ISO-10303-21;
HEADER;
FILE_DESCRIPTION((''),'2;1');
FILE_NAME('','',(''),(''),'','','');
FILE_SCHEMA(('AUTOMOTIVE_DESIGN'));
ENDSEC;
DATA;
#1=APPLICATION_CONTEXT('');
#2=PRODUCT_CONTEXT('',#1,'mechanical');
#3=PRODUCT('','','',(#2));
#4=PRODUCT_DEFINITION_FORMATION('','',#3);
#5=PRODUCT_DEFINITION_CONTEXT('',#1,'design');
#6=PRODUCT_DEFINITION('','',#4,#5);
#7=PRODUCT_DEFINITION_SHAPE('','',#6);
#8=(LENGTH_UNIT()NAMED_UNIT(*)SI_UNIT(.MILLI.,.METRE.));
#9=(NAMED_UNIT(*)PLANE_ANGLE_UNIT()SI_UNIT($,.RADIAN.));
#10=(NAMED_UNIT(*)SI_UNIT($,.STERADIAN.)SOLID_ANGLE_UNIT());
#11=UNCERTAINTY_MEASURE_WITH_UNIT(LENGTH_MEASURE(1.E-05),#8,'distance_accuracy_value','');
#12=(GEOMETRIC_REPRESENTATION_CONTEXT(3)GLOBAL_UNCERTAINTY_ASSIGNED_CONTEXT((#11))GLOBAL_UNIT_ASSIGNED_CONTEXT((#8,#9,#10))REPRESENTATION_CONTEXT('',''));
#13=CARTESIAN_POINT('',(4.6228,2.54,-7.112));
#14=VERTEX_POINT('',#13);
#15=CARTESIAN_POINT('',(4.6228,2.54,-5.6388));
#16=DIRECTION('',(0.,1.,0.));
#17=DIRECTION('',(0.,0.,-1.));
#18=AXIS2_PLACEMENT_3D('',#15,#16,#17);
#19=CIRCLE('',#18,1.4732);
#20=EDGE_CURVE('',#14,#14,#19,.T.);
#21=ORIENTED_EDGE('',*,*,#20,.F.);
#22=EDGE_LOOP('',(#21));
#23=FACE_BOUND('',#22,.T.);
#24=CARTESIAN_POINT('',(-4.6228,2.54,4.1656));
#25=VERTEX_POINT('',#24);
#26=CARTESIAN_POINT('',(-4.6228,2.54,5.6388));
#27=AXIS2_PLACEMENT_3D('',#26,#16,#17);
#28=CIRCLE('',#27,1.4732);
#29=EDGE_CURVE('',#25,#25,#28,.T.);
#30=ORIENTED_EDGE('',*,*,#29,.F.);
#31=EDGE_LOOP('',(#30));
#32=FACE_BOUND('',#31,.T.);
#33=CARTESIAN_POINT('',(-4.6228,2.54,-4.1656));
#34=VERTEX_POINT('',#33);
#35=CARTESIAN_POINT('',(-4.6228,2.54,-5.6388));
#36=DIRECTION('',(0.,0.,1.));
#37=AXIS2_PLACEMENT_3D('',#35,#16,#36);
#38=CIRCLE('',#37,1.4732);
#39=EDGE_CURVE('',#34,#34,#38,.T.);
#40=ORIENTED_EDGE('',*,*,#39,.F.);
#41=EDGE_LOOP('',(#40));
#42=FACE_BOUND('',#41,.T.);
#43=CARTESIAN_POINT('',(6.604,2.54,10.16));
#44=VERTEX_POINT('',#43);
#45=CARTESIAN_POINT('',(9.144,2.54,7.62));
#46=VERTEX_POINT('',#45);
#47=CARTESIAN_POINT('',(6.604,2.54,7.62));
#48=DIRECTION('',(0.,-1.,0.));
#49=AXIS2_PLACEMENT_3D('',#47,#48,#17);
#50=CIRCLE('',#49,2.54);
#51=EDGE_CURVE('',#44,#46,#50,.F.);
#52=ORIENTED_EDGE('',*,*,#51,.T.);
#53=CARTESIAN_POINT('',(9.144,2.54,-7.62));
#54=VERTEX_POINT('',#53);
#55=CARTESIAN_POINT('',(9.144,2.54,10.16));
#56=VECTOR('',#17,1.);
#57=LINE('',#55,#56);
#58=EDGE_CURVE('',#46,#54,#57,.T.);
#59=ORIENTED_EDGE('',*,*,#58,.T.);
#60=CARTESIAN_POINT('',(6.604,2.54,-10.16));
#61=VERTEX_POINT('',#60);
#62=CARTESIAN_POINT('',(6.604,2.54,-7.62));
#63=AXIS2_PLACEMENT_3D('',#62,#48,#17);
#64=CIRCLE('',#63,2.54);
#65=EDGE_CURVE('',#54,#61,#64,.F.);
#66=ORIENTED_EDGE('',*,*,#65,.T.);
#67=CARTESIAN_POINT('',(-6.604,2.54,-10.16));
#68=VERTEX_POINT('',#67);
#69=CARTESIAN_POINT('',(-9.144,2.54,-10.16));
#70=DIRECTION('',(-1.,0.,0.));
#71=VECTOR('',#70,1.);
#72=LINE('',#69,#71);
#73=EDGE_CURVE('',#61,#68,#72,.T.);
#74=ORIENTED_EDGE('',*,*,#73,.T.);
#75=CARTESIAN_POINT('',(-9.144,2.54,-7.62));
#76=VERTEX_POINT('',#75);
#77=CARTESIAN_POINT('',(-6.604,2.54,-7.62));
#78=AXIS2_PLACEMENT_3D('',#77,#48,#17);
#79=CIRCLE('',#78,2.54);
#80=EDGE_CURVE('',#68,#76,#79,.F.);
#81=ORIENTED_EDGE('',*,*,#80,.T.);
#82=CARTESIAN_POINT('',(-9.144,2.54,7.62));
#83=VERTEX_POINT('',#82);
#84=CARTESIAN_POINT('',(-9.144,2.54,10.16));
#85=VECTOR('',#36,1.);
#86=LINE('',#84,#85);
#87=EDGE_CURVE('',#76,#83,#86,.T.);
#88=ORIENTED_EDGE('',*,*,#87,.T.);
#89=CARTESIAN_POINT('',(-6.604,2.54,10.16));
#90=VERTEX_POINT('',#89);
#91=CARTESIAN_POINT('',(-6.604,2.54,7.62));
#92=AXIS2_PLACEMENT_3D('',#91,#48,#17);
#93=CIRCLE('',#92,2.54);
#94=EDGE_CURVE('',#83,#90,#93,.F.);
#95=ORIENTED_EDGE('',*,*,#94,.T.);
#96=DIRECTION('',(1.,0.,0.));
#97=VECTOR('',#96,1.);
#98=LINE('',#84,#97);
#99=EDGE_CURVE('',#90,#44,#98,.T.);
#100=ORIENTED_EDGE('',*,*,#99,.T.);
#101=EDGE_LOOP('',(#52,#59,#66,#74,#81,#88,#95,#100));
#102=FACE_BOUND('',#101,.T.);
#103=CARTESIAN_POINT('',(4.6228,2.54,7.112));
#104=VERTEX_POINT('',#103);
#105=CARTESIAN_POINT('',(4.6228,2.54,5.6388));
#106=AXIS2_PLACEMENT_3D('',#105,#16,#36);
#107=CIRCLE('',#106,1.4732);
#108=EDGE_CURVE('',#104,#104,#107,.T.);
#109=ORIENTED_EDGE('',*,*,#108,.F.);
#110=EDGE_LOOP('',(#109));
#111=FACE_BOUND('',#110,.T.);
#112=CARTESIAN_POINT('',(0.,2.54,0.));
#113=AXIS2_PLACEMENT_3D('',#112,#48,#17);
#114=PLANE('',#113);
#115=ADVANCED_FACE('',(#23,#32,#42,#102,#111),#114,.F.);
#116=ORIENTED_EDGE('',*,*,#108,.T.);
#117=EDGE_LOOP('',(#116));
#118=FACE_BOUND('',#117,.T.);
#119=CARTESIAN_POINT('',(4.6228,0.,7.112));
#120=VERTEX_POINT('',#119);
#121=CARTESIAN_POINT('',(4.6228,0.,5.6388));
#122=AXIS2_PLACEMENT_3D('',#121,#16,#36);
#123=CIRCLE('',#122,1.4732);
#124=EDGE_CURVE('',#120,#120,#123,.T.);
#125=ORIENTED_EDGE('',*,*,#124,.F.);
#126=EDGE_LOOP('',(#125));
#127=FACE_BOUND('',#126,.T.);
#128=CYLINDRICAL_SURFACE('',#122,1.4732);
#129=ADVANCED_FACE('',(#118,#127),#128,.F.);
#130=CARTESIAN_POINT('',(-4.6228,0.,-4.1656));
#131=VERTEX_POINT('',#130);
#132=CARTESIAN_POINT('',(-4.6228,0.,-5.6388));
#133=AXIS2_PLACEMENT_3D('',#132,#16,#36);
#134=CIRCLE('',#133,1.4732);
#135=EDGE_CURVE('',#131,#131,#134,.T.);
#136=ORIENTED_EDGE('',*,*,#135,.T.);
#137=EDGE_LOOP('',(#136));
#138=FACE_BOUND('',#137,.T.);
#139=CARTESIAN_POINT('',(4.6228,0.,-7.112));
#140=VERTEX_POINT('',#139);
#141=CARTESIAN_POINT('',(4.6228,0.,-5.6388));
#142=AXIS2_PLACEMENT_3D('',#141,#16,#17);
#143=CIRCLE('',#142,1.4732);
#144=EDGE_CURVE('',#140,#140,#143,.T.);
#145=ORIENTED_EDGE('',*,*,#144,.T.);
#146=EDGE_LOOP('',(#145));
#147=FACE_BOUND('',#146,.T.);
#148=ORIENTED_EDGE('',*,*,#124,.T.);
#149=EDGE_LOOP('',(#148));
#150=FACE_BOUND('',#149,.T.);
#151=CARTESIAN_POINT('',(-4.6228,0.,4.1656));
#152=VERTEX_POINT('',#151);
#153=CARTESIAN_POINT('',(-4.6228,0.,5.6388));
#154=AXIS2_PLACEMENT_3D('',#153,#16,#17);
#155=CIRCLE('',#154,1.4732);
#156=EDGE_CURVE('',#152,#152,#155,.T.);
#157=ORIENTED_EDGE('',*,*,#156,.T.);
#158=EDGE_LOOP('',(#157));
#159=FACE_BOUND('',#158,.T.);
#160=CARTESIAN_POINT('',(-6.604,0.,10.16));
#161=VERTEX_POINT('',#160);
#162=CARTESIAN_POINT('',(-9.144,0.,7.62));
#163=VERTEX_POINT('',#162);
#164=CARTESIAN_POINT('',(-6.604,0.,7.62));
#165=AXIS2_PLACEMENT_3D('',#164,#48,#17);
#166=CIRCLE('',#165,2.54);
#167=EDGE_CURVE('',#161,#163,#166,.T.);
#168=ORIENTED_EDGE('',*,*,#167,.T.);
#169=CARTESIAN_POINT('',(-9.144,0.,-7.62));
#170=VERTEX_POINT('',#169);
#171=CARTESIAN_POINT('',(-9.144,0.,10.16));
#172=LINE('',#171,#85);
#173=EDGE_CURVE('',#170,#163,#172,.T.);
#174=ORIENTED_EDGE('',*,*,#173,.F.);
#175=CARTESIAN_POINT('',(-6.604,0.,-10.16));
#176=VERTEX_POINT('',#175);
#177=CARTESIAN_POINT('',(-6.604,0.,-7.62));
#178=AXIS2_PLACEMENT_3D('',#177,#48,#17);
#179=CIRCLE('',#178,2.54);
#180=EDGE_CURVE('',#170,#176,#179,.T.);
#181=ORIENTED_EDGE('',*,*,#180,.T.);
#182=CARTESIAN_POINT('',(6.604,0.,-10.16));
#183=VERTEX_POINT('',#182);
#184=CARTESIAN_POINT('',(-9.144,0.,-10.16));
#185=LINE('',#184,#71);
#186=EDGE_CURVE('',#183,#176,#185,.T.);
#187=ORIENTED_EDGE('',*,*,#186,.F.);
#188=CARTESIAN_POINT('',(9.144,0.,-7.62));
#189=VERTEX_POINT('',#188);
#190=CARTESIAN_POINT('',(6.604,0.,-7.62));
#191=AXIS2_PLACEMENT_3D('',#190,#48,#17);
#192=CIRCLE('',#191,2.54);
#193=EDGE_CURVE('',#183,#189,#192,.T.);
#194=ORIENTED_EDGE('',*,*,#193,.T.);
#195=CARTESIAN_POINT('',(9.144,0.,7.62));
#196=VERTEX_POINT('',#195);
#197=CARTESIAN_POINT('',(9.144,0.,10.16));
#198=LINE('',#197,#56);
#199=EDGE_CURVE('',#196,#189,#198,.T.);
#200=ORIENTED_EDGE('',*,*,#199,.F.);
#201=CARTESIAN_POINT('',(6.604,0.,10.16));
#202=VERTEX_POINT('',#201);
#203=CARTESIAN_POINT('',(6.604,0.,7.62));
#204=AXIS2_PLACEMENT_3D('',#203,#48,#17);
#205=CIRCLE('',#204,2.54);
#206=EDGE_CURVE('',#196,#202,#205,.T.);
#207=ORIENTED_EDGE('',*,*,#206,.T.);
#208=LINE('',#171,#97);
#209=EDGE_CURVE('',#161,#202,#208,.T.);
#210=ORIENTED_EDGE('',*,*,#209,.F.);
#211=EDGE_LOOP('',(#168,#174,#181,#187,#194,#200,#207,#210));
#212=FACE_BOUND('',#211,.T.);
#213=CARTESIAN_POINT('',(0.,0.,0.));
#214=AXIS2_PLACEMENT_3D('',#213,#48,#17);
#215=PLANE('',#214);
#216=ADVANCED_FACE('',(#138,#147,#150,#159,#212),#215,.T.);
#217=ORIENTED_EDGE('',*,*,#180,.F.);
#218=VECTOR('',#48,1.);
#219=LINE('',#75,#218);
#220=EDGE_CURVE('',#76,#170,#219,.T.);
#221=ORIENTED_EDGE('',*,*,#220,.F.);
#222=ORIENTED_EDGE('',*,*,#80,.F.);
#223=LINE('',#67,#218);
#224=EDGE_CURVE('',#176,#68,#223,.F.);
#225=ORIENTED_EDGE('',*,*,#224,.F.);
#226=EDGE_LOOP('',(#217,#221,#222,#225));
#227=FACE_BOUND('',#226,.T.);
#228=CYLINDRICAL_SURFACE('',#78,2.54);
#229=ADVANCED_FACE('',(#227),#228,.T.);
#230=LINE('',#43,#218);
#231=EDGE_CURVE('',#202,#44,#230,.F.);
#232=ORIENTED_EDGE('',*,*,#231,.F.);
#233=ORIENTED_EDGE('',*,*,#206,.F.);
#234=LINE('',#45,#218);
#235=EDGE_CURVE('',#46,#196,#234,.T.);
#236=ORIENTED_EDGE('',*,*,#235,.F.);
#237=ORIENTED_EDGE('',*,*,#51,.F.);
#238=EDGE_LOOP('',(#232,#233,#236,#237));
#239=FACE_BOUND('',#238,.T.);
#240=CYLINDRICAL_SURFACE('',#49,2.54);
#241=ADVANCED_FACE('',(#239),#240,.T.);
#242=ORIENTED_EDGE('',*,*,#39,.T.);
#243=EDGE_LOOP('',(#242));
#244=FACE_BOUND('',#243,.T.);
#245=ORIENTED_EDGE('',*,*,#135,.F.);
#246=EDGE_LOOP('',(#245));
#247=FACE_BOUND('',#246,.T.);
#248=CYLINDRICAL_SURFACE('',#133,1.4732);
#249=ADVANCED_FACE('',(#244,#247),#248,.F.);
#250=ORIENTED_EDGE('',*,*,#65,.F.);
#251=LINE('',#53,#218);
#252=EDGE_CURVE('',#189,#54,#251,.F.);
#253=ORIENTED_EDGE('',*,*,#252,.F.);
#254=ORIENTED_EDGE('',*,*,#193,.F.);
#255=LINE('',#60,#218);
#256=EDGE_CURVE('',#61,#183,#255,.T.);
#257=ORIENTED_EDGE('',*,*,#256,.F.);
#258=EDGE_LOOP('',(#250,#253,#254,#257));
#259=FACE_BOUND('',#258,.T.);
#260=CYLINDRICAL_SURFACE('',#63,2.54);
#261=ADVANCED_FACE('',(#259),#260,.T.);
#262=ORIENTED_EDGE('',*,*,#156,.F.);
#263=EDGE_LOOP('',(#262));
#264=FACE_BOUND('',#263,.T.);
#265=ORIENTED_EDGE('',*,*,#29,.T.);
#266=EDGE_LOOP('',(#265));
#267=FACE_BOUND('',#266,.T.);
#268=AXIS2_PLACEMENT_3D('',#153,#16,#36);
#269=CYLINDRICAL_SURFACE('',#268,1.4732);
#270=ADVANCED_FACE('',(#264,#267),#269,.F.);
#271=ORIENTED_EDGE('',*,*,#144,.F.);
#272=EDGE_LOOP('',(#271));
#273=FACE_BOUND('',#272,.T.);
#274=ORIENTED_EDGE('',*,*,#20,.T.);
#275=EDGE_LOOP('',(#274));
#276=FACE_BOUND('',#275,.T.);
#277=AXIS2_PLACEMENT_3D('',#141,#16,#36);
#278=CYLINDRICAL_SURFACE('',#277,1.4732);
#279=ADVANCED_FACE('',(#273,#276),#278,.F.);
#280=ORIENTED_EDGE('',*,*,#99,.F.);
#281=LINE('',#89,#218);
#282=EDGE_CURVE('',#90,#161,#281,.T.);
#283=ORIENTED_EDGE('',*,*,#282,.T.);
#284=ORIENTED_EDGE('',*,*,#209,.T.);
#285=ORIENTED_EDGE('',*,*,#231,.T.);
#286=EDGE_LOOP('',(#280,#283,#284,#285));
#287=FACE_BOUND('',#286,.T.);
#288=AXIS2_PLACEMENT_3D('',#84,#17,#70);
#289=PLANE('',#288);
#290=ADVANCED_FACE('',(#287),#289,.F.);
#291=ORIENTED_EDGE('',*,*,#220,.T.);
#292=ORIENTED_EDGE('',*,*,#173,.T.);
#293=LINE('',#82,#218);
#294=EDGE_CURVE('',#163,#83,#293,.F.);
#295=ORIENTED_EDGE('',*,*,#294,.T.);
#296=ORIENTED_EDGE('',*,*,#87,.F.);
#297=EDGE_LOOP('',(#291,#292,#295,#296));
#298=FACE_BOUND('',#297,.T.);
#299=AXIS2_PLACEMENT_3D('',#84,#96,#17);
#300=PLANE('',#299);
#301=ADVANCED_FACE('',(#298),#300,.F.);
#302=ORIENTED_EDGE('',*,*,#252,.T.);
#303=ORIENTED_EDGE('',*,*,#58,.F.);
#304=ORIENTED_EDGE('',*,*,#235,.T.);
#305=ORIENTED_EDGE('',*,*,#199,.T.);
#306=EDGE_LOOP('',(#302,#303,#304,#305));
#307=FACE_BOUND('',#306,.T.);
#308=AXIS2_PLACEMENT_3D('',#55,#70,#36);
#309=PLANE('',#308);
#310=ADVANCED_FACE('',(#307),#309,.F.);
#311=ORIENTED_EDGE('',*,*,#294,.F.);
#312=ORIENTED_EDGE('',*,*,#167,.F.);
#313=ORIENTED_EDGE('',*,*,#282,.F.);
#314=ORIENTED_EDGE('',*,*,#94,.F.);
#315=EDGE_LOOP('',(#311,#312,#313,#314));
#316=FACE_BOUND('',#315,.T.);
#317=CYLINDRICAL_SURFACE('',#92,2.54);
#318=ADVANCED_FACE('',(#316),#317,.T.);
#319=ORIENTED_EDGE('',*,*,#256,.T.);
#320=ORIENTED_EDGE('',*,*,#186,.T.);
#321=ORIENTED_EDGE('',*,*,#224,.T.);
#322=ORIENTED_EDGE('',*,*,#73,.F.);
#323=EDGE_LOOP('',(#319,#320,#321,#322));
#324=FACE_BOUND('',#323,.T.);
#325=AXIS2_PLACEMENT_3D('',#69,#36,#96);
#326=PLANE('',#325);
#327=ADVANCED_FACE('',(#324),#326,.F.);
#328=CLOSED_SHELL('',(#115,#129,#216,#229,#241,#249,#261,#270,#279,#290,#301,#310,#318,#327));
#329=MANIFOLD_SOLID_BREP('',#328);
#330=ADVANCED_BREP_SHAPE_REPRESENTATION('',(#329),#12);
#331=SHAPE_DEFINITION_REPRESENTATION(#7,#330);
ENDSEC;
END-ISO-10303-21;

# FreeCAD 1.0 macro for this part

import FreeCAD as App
import Part
import Sketcher
from FreeCAD import Vector
Q = App.Units.Quantity


def edges_at(feature, points):
    """Names of the edges that pass closest to the given points."""
    edges = feature.Shape.Edges
    near = lambda p: min(range(len(edges)), key=lambda i: edges[i].distToShape(Part.Vertex(*p))[0])
    return sorted({f"Edge{near(p) + 1}" for p in points})

doc = App.newDocument("Part")
body = doc.addObject("PartDesign::Body", "Body")

# Sketch on XZ plane
sketch1 = body.newObject("Sketcher::SketchObject", "Sketch")
sketch1.AttachmentSupport = (doc.getObject("XZ_Plane"), [""])
sketch1.MapMode = "FlatFace"
sketch1.addGeometry(Part.LineSegment(Vector(-9.144, -10.16, 0), Vector(-9.144, 10.16, 0)), False)
sketch1.addGeometry(Part.LineSegment(Vector(-9.144, 10.16, 0), Vector(9.144, 10.16, 0)), False)
sketch1.addGeometry(Part.LineSegment(Vector(9.144, 10.16, 0), Vector(9.144, -10.16, 0)), False)
sketch1.addGeometry(Part.LineSegment(Vector(9.144, -10.16, 0), Vector(-9.144, -10.16, 0)), False)
sketch1.addConstraint(Sketcher.Constraint("Coincident", 0, 2, 1, 1))
sketch1.addConstraint(Sketcher.Constraint("Coincident", 1, 2, 2, 1))
sketch1.addConstraint(Sketcher.Constraint("Coincident", 2, 2, 3, 1))
sketch1.addConstraint(Sketcher.Constraint("Coincident", 3, 2, 0, 1))
sketch1.addConstraint(Sketcher.Constraint("Vertical", 0))
sketch1.addConstraint(Sketcher.Constraint("Horizontal", 1))
sketch1.addConstraint(Sketcher.Constraint("Vertical", 2))
sketch1.addConstraint(Sketcher.Constraint("Horizontal", 3))
sketch1.addConstraint(Sketcher.Constraint("Symmetric", 0, 2, 2, 2, -1, 1))
sketch1.addConstraint(Sketcher.Constraint("DistanceY", 0, 1, 0, 2, Q("0.8 in")))
sketch1.addConstraint(Sketcher.Constraint("DistanceX", 1, 1, 1, 2, Q("0.72 in")))
pad1 = body.newObject("PartDesign::Pad", "Pad")
pad1.Profile = sketch1
pad1.Length = Q("0.1 in")
pad1.Reversed = True

# Sketch on XZ plane
sketch2 = body.newObject("Sketcher::SketchObject", "Sketch001")
sketch2.AttachmentSupport = (doc.getObject("XZ_Plane"), [""])
sketch2.MapMode = "FlatFace"
sketch2.AttachmentOffset = App.Placement(Vector(0, 0, -0.1 * 25.4), App.Rotation())
sketch2.addGeometry(Part.Circle(Vector(-4.6228, -5.6388, 0), Vector(0, 0, 1), 1.4732), False)
sketch2.addGeometry(Part.Circle(Vector(-4.6228, 5.6388, 0), Vector(0, 0, 1), 1.4732), False)
sketch2.addGeometry(Part.Circle(Vector(4.6228, 5.6388, 0), Vector(0, 0, 1), 1.4732), False)
sketch2.addGeometry(Part.Circle(Vector(4.6228, -5.6388, 0), Vector(0, 0, 1), 1.4732), False)
sketch2.addConstraint(Sketcher.Constraint("Equal", 0, 1))
sketch2.addConstraint(Sketcher.Constraint("Equal", 1, 2))
sketch2.addConstraint(Sketcher.Constraint("Equal", 2, 3))
sketch2.addConstraint(Sketcher.Constraint("Symmetric", 0, 3, 2, 3, -1, 1))
sketch2.addConstraint(Sketcher.Constraint("Symmetric", 1, 3, 3, 3, -1, 1))
sketch2.addConstraint(Sketcher.Constraint("Symmetric", 1, 3, 2, 3, -2))
sketch2.addConstraint(Sketcher.Constraint("Diameter", 0, Q("0.116 in")))
sketch2.addConstraint(Sketcher.Constraint("DistanceX", 0, 3, -1, 1, Q("0.182 in")))
sketch2.addConstraint(Sketcher.Constraint("DistanceY", 0, 3, -1, 1, Q("0.222 in")))
pocket1 = body.newObject("PartDesign::Pocket", "Pocket")
pocket1.Profile = sketch2
pocket1.Type = "ThroughAll"
pocket1.Reversed = True
doc.recompute()

fillet = body.newObject("PartDesign::Fillet", "Fillet")
fillet.Base = (pocket1, edges_at(pocket1, [
    (9.144, 1.27, 10.16),
    (-9.144, 1.27, 10.16),
    (-9.144, 1.27, -10.16),
    (9.144, 1.27, -10.16),
]))
fillet.Radius = Q("0.1 in")

doc.recompute()
